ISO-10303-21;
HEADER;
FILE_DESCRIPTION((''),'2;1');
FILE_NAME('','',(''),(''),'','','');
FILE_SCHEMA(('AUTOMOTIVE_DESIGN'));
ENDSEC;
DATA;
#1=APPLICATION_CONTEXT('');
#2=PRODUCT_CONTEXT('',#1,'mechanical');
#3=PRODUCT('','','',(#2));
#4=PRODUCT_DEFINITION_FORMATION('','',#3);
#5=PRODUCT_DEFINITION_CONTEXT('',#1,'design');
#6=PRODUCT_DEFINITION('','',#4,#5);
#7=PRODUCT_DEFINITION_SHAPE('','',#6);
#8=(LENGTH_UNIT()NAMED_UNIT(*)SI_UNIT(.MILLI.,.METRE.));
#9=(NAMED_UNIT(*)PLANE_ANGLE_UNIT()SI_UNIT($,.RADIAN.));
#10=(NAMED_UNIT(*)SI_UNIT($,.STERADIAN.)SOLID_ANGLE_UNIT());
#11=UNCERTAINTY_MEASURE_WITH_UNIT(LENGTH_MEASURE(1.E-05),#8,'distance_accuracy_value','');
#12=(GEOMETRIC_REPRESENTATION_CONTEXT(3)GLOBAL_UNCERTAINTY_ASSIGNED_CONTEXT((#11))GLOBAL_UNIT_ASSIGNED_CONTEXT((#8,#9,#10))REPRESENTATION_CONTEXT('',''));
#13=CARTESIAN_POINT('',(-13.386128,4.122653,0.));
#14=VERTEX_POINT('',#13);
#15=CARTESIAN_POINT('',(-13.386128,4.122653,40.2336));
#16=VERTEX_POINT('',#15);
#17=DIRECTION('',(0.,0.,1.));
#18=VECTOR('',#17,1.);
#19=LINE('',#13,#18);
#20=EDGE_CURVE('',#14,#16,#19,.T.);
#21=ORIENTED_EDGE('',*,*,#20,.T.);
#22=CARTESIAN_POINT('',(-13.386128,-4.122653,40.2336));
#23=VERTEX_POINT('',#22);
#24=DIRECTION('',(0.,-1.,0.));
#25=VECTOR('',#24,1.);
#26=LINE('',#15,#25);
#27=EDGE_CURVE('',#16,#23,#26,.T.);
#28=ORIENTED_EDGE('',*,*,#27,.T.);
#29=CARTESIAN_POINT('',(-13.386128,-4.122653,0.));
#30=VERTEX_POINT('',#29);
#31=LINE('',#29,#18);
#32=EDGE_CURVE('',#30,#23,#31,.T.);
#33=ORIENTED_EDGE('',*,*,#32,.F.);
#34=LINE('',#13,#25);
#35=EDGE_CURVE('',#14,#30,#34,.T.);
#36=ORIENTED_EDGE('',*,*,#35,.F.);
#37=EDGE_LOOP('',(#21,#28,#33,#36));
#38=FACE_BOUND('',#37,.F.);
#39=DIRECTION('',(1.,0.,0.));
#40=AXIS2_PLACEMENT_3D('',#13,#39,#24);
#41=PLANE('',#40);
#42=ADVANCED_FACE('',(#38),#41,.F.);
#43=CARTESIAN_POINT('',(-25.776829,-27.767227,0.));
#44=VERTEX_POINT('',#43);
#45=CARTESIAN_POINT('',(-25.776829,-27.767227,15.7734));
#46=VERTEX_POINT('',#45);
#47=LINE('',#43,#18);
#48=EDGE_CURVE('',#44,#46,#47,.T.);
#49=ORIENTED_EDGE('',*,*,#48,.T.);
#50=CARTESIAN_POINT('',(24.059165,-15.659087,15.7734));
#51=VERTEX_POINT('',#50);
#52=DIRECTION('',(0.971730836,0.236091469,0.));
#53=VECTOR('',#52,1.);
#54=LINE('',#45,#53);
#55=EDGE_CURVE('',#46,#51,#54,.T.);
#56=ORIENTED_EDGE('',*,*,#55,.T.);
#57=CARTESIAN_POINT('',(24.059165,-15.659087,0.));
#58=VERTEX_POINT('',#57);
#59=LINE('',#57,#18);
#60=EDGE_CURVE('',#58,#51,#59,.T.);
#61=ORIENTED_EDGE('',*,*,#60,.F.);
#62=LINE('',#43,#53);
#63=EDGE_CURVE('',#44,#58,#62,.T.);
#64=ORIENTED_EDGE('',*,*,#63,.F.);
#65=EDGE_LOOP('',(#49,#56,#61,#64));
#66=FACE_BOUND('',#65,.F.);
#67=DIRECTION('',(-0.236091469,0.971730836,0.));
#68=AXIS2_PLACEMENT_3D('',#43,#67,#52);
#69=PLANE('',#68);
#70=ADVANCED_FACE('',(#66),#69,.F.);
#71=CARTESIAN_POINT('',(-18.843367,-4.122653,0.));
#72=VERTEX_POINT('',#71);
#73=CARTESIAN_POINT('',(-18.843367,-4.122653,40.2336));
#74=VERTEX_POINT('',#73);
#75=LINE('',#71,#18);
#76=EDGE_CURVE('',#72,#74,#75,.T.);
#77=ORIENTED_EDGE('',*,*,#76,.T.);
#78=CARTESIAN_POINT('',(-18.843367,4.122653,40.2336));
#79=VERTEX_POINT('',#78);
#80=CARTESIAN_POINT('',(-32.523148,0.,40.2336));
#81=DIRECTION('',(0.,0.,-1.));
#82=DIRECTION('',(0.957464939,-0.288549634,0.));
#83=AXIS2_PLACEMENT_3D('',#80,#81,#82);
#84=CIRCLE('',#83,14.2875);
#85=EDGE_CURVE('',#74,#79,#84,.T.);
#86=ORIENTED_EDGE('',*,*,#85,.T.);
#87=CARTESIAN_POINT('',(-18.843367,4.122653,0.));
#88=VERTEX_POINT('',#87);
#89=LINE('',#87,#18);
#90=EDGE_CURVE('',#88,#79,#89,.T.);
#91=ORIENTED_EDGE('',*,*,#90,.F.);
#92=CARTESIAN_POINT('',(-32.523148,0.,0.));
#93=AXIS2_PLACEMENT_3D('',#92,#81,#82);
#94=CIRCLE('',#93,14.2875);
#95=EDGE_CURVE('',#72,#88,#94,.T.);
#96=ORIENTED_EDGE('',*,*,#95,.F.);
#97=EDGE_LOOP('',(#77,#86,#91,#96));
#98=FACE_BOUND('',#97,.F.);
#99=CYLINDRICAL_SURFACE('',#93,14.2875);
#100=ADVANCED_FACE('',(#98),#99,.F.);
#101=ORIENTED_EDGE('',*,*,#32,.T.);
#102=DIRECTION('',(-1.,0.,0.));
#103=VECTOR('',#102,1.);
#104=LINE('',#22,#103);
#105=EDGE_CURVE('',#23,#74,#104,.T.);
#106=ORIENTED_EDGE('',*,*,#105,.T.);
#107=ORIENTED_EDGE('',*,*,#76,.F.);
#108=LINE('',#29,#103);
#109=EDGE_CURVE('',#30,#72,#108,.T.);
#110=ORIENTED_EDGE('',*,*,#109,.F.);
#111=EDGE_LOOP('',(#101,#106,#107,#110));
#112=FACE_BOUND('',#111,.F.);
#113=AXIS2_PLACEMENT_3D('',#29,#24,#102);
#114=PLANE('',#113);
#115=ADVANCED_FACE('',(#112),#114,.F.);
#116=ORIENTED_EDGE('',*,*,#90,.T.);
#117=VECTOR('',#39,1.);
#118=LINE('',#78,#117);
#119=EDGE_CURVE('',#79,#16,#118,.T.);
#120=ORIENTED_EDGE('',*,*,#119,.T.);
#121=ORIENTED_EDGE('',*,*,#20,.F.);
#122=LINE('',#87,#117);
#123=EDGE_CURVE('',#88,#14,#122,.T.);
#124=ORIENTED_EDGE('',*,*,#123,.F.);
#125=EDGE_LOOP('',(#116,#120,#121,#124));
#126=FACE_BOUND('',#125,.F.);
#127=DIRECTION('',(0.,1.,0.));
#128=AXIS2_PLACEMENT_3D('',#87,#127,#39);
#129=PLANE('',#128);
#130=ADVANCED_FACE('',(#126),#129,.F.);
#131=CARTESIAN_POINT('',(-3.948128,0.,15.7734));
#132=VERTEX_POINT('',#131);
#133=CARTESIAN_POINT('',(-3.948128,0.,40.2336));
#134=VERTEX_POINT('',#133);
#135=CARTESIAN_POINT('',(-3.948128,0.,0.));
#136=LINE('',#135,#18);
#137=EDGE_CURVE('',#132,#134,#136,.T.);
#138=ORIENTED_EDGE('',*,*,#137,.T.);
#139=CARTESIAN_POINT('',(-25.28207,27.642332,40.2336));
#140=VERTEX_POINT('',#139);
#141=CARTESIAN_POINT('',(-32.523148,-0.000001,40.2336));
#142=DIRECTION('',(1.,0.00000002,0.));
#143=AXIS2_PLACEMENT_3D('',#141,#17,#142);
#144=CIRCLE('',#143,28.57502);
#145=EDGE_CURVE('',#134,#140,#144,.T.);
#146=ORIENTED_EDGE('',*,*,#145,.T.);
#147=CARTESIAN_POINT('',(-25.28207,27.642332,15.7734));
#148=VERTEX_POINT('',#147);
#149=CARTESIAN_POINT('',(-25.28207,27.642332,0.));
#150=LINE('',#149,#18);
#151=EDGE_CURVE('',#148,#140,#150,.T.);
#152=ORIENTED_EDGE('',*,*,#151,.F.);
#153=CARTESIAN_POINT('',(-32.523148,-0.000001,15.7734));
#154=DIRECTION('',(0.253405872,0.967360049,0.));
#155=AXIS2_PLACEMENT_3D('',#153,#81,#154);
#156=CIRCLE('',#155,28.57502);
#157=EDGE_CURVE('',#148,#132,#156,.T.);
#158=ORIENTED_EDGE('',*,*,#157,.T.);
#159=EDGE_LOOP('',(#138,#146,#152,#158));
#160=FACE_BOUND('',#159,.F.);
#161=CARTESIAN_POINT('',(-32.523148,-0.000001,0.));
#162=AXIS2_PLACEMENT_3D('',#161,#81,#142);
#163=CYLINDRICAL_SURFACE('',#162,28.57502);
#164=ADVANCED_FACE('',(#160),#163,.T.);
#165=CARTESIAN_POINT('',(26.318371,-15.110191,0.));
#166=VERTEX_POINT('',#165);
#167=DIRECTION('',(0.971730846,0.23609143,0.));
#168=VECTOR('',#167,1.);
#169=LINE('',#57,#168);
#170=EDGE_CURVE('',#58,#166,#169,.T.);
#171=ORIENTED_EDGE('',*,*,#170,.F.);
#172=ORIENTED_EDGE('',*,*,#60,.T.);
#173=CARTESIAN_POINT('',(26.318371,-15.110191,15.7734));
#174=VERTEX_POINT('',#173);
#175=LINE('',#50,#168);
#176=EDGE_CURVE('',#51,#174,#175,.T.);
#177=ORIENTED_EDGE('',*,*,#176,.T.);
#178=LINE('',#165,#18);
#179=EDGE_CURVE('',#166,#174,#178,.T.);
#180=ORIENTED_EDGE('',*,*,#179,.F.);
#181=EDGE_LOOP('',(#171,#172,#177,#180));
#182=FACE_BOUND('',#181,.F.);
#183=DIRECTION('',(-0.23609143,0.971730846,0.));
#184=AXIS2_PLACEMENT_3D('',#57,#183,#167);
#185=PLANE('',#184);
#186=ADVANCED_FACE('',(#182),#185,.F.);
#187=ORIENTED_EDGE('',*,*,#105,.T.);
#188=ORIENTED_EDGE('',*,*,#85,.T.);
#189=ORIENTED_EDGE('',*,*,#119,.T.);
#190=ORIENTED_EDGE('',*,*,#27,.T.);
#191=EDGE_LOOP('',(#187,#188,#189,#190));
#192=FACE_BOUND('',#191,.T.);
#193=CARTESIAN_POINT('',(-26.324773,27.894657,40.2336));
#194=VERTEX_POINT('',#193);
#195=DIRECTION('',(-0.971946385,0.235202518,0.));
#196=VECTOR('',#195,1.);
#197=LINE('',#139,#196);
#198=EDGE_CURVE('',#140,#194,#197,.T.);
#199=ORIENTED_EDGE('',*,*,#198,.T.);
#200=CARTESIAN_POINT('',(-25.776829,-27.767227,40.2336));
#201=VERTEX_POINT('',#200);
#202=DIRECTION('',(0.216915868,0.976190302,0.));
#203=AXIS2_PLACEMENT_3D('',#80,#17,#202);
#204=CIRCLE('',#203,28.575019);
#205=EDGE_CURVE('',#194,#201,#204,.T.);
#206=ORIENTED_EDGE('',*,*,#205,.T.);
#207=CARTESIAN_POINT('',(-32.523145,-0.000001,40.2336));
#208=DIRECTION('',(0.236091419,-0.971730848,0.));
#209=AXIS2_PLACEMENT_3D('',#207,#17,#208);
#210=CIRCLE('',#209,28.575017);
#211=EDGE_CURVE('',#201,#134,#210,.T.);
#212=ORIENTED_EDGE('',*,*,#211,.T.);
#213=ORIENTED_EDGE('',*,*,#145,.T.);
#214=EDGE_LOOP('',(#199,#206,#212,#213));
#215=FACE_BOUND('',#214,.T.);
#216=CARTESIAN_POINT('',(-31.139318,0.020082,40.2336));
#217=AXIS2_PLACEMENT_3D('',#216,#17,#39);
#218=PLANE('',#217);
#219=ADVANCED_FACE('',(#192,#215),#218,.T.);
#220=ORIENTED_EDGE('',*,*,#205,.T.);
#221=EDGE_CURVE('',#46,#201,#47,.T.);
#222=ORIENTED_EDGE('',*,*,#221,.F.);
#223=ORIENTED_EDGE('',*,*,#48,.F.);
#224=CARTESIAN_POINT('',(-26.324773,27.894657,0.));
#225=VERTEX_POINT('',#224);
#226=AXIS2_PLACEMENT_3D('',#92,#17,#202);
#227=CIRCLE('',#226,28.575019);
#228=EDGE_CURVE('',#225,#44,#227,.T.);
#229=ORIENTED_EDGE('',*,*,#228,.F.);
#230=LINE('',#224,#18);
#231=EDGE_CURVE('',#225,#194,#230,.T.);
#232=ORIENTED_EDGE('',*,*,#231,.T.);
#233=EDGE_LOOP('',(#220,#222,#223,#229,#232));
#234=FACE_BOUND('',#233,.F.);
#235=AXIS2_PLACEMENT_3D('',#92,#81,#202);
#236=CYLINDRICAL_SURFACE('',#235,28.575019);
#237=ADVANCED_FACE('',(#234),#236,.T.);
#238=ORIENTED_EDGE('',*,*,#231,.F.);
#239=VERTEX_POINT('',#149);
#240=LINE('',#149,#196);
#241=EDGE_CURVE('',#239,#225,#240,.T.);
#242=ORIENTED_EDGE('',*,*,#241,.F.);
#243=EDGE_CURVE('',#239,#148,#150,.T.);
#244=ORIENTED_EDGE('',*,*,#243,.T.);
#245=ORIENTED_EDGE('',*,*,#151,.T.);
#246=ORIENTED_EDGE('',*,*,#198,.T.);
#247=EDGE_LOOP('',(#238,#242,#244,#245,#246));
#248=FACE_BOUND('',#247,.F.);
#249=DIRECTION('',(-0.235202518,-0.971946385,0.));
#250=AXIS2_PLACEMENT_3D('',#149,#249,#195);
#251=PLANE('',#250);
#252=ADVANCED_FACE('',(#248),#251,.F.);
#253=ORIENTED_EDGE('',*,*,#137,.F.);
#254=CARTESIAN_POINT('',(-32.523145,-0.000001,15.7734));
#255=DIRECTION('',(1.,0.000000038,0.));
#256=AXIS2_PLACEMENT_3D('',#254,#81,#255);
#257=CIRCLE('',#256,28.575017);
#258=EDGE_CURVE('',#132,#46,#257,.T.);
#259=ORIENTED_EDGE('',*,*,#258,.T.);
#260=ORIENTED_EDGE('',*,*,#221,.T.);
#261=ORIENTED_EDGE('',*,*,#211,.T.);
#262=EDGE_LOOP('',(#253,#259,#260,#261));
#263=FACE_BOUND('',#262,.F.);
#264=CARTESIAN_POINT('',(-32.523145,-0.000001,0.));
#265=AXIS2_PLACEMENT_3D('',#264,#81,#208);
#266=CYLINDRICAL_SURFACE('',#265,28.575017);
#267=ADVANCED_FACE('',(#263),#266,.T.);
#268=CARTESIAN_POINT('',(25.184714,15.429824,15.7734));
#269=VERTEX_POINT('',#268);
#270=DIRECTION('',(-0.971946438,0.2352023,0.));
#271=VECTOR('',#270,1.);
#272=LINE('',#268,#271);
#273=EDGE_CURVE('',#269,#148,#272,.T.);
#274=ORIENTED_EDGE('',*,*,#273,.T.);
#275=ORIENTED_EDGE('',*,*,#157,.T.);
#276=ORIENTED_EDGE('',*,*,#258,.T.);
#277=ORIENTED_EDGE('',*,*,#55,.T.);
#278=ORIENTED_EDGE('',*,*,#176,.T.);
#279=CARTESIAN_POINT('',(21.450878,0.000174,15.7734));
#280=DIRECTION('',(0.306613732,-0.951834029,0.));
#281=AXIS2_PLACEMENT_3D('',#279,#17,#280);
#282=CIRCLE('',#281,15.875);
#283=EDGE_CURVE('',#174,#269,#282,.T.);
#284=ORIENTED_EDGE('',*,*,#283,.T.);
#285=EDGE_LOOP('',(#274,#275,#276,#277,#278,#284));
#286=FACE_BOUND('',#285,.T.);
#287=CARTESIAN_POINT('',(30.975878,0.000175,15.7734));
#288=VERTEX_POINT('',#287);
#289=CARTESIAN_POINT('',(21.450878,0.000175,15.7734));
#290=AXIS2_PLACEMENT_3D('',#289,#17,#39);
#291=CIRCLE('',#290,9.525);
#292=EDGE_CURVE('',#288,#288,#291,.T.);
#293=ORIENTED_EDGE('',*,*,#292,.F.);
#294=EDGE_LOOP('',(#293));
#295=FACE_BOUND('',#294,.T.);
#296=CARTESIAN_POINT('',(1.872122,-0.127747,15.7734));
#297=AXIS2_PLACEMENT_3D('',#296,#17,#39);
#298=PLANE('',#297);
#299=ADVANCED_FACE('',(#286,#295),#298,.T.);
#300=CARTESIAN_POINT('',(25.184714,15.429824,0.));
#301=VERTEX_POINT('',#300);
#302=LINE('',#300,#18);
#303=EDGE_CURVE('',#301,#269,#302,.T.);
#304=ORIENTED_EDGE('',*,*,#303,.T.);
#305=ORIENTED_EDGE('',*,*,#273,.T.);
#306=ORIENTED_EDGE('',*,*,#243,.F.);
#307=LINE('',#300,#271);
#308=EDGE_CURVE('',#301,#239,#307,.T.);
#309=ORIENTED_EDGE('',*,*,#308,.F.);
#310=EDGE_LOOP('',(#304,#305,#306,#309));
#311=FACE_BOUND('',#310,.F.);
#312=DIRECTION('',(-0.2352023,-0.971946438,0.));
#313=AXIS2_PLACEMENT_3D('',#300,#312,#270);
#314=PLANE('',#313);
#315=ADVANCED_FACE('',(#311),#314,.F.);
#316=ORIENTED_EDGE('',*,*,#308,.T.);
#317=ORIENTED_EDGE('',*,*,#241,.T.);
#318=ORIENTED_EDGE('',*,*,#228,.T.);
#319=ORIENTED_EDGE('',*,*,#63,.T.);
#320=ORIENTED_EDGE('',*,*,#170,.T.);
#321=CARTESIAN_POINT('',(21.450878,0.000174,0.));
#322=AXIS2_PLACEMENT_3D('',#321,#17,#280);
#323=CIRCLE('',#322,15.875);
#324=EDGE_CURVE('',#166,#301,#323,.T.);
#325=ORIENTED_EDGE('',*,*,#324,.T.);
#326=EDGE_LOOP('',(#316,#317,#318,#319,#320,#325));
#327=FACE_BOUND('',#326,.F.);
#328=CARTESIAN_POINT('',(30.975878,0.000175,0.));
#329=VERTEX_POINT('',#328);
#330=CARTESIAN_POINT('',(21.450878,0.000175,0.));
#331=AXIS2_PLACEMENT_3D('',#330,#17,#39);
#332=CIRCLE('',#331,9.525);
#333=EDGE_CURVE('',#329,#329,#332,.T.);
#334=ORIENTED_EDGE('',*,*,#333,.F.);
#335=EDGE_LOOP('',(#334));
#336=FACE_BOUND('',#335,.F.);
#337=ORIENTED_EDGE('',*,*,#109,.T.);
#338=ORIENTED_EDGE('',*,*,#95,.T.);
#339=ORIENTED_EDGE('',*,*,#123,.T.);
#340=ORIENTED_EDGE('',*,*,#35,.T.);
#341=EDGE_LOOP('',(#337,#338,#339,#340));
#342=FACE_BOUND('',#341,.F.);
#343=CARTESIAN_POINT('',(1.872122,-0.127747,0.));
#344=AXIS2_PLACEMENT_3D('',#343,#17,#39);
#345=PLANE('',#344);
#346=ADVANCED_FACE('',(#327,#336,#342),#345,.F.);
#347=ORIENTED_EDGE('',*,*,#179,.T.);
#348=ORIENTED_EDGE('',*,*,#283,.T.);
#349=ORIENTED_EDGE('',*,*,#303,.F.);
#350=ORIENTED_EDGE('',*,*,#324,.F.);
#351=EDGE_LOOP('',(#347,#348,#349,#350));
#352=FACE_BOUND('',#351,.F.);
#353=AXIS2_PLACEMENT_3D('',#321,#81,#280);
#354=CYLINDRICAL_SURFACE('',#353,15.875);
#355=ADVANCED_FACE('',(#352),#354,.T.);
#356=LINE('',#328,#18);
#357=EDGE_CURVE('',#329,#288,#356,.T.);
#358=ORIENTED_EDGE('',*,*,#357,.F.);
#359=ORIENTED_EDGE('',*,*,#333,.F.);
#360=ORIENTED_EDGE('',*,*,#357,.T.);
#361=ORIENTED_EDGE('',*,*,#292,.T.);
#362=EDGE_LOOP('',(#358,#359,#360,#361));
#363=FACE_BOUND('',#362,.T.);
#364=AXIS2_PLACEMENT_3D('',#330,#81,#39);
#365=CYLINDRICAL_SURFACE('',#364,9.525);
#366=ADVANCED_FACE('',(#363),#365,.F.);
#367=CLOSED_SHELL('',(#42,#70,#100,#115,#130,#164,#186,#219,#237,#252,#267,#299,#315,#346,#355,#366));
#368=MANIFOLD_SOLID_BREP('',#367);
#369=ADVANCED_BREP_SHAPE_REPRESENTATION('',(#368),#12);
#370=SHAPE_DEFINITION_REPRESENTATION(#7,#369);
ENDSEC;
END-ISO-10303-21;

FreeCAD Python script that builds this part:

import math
import FreeCAD as App
import Part
import Sketcher

V = App.Vector
Q = App.Units.Quantity

doc = App.newDocument("Part")
body = doc.addObject("PartDesign::Body", "Body")

# Sketch on XY plane
sketch1 = body.newObject("Sketcher::SketchObject", "Sketch")
sketch1.AttachmentSupport = (doc.getObject("XY_Plane"), [""])
sketch1.MapMode = "FlatFace"
sketch1.addGeometry([
    Part.LineSegment(V(-25.3, 27.6, 0), V(-26.3, 27.9, 0)),  # 0
    Part.ArcOfCircle(Part.Circle(V(-32.5, 0, 0), V(0, 0, 1), 28.6), math.radians(77), math.radians(284)),  # 1
    Part.ArcOfCircle(Part.Circle(V(-32.5, 0, 0), V(0, 0, 1), 28.6), math.radians(-76), math.radians(0)),  # 2
    Part.ArcOfCircle(Part.Circle(V(-32.5, 0, 0), V(0, 0, 1), 28.6), math.radians(0), math.radians(75)),  # 3
    Part.LineSegment(V(-13.4, -4.1, 0), V(-18.8, -4.1, 0)),  # 4
    Part.ArcOfCircle(Part.Circle(V(-32.5, 0, 0), V(0, 0, 1), 14.3), math.radians(17), math.radians(343)),  # 5
    Part.LineSegment(V(-18.8, 4.1, 0), V(-13.4, 4.1, 0)),  # 6
    Part.LineSegment(V(-13.4, 4.1, 0), V(-13.4, -4.1, 0)),  # 7
], False)
sketch1.addConstraint([
    Sketcher.Constraint("Coincident", 0, 2, 1, 1),
    Sketcher.Constraint("Tangent", 1, 2, 2, 1),
    Sketcher.Constraint("Tangent", 2, 2, 3, 1),
    Sketcher.Constraint("Coincident", 3, 2, 0, 1),
    Sketcher.Constraint("Coincident", 4, 2, 5, 2),
    Sketcher.Constraint("Coincident", 5, 1, 6, 1),
    Sketcher.Constraint("Coincident", 6, 2, 7, 1),
    Sketcher.Constraint("Coincident", 7, 2, 4, 1),
    Sketcher.Constraint("Horizontal", 4),
    Sketcher.Constraint("Horizontal", 6),
    Sketcher.Constraint("Vertical", 7),
    Sketcher.Constraint("Coincident", 3, 3, 1, 3),
    Sketcher.Constraint("Coincident", 5, 3, 1, 3),
    Sketcher.Constraint("Symmetric", 4, 2, 5, 1, -1),
    Sketcher.Constraint("PointOnObject", 2, 2, -1),
    Sketcher.Constraint("Radius", 5, Q("0.5625 in")),
    Sketcher.Constraint("Radius", 1, Q("28.575019 mm")),
    Sketcher.Constraint("Distance", 0, Q("1.072799 mm")),
    Sketcher.Constraint("DistanceX", 4, 2, 4, 1, Q("5.457239 mm")),
    Sketcher.Constraint("DistanceX", 1, 2, 2, 2, Q("21.828701 mm")),
    Sketcher.Constraint("DistanceX", 6, 2, 2, 2, Q("9.438 mm")),
    Sketcher.Constraint("DistanceX", 1, 3, -1, 1, Q("32.523148 mm")),
    Sketcher.Constraint("DistanceX", 3, 2, -1, 1, Q("25.28207 mm")),
])
pad1 = body.newObject("PartDesign::Pad", "Pad")
pad1.Profile = sketch1
pad1.Length = Q("1.584 in")

# Sketch on XY plane
sketch2 = body.newObject("Sketcher::SketchObject", "Sketch001")
sketch2.AttachmentSupport = (doc.getObject("XY_Plane"), [""])
sketch2.MapMode = "FlatFace"
sketch2.addGeometry([
    Part.ArcOfCircle(Part.Circle(V(-32.5, 0, 0), V(0, 0, 1), 28.6), math.radians(-76), math.radians(0)),  # 0
    Part.LineSegment(V(-25.8, -27.8, 0), V(24.1, -15.7, 0)),  # 1
    Part.LineSegment(V(24.1, -15.7, 0), V(26.3, -15.1, 0)),  # 2
    Part.ArcOfCircle(Part.Circle(V(21.5, 0, 0), V(0, 0, 1), 15.9), math.radians(-72), math.radians(76)),  # 3
    Part.LineSegment(V(25.2, 15.4, 0), V(-25.3, 27.6, 0)),  # 4
    Part.ArcOfCircle(Part.Circle(V(-32.5, 0, 0), V(0, 0, 1), 28.6), math.radians(0), math.radians(75)),  # 5
    Part.Circle(V(21.5, 0, 0), V(0, 0, 1), 9.5),  # 6
], False)
sketch2.addConstraint([
    Sketcher.Constraint("Tangent", 0, 1, 1, 1),
    Sketcher.Constraint("Coincident", 1, 2, 2, 1),
    Sketcher.Constraint("Coincident", 2, 2, 3, 1),
    Sketcher.Constraint("Tangent", 3, 2, 4, 1),
    Sketcher.Constraint("Coincident", 4, 2, 5, 2),
    Sketcher.Constraint("Tangent", 5, 1, 0, 2),
    Sketcher.Constraint("Coincident", 6, 3, 3, 3),
    Sketcher.Constraint("PointOnObject", 0, 3, -1),
    Sketcher.Constraint("PointOnObject", 5, 1, -1),
    Sketcher.Constraint("Parallel", 1, 2),
    Sketcher.Constraint("Diameter", 6, Q("0.75 in")),
    Sketcher.Constraint("Radius", 3, Q("0.625 in")),
    Sketcher.Constraint("Radius", 5, Q("28.57502 mm")),
    Sketcher.Constraint("Radius", 0, Q("28.575017 mm")),
    Sketcher.Constraint("Distance", 1, Q("51.285801 mm")),
    Sketcher.Constraint("DistanceY", 0, 1, 3, 3, Q("27.767401 mm")),
    Sketcher.Constraint("DistanceX", 0, 1, 2, 2, Q("52.0952 mm")),
    Sketcher.Constraint("Distance", 2, Q("2.32493 mm")),
    Sketcher.Constraint("Distance", 4, Q("51.923421 mm")),
    Sketcher.Constraint("DistanceX", -1, 1, 3, 3, Q("21.450878 mm")),
])
pad2 = body.newObject("PartDesign::Pad", "Pad001")
pad2.Profile = sketch2
pad2.Length = Q("0.621 in")

doc.recompute()
